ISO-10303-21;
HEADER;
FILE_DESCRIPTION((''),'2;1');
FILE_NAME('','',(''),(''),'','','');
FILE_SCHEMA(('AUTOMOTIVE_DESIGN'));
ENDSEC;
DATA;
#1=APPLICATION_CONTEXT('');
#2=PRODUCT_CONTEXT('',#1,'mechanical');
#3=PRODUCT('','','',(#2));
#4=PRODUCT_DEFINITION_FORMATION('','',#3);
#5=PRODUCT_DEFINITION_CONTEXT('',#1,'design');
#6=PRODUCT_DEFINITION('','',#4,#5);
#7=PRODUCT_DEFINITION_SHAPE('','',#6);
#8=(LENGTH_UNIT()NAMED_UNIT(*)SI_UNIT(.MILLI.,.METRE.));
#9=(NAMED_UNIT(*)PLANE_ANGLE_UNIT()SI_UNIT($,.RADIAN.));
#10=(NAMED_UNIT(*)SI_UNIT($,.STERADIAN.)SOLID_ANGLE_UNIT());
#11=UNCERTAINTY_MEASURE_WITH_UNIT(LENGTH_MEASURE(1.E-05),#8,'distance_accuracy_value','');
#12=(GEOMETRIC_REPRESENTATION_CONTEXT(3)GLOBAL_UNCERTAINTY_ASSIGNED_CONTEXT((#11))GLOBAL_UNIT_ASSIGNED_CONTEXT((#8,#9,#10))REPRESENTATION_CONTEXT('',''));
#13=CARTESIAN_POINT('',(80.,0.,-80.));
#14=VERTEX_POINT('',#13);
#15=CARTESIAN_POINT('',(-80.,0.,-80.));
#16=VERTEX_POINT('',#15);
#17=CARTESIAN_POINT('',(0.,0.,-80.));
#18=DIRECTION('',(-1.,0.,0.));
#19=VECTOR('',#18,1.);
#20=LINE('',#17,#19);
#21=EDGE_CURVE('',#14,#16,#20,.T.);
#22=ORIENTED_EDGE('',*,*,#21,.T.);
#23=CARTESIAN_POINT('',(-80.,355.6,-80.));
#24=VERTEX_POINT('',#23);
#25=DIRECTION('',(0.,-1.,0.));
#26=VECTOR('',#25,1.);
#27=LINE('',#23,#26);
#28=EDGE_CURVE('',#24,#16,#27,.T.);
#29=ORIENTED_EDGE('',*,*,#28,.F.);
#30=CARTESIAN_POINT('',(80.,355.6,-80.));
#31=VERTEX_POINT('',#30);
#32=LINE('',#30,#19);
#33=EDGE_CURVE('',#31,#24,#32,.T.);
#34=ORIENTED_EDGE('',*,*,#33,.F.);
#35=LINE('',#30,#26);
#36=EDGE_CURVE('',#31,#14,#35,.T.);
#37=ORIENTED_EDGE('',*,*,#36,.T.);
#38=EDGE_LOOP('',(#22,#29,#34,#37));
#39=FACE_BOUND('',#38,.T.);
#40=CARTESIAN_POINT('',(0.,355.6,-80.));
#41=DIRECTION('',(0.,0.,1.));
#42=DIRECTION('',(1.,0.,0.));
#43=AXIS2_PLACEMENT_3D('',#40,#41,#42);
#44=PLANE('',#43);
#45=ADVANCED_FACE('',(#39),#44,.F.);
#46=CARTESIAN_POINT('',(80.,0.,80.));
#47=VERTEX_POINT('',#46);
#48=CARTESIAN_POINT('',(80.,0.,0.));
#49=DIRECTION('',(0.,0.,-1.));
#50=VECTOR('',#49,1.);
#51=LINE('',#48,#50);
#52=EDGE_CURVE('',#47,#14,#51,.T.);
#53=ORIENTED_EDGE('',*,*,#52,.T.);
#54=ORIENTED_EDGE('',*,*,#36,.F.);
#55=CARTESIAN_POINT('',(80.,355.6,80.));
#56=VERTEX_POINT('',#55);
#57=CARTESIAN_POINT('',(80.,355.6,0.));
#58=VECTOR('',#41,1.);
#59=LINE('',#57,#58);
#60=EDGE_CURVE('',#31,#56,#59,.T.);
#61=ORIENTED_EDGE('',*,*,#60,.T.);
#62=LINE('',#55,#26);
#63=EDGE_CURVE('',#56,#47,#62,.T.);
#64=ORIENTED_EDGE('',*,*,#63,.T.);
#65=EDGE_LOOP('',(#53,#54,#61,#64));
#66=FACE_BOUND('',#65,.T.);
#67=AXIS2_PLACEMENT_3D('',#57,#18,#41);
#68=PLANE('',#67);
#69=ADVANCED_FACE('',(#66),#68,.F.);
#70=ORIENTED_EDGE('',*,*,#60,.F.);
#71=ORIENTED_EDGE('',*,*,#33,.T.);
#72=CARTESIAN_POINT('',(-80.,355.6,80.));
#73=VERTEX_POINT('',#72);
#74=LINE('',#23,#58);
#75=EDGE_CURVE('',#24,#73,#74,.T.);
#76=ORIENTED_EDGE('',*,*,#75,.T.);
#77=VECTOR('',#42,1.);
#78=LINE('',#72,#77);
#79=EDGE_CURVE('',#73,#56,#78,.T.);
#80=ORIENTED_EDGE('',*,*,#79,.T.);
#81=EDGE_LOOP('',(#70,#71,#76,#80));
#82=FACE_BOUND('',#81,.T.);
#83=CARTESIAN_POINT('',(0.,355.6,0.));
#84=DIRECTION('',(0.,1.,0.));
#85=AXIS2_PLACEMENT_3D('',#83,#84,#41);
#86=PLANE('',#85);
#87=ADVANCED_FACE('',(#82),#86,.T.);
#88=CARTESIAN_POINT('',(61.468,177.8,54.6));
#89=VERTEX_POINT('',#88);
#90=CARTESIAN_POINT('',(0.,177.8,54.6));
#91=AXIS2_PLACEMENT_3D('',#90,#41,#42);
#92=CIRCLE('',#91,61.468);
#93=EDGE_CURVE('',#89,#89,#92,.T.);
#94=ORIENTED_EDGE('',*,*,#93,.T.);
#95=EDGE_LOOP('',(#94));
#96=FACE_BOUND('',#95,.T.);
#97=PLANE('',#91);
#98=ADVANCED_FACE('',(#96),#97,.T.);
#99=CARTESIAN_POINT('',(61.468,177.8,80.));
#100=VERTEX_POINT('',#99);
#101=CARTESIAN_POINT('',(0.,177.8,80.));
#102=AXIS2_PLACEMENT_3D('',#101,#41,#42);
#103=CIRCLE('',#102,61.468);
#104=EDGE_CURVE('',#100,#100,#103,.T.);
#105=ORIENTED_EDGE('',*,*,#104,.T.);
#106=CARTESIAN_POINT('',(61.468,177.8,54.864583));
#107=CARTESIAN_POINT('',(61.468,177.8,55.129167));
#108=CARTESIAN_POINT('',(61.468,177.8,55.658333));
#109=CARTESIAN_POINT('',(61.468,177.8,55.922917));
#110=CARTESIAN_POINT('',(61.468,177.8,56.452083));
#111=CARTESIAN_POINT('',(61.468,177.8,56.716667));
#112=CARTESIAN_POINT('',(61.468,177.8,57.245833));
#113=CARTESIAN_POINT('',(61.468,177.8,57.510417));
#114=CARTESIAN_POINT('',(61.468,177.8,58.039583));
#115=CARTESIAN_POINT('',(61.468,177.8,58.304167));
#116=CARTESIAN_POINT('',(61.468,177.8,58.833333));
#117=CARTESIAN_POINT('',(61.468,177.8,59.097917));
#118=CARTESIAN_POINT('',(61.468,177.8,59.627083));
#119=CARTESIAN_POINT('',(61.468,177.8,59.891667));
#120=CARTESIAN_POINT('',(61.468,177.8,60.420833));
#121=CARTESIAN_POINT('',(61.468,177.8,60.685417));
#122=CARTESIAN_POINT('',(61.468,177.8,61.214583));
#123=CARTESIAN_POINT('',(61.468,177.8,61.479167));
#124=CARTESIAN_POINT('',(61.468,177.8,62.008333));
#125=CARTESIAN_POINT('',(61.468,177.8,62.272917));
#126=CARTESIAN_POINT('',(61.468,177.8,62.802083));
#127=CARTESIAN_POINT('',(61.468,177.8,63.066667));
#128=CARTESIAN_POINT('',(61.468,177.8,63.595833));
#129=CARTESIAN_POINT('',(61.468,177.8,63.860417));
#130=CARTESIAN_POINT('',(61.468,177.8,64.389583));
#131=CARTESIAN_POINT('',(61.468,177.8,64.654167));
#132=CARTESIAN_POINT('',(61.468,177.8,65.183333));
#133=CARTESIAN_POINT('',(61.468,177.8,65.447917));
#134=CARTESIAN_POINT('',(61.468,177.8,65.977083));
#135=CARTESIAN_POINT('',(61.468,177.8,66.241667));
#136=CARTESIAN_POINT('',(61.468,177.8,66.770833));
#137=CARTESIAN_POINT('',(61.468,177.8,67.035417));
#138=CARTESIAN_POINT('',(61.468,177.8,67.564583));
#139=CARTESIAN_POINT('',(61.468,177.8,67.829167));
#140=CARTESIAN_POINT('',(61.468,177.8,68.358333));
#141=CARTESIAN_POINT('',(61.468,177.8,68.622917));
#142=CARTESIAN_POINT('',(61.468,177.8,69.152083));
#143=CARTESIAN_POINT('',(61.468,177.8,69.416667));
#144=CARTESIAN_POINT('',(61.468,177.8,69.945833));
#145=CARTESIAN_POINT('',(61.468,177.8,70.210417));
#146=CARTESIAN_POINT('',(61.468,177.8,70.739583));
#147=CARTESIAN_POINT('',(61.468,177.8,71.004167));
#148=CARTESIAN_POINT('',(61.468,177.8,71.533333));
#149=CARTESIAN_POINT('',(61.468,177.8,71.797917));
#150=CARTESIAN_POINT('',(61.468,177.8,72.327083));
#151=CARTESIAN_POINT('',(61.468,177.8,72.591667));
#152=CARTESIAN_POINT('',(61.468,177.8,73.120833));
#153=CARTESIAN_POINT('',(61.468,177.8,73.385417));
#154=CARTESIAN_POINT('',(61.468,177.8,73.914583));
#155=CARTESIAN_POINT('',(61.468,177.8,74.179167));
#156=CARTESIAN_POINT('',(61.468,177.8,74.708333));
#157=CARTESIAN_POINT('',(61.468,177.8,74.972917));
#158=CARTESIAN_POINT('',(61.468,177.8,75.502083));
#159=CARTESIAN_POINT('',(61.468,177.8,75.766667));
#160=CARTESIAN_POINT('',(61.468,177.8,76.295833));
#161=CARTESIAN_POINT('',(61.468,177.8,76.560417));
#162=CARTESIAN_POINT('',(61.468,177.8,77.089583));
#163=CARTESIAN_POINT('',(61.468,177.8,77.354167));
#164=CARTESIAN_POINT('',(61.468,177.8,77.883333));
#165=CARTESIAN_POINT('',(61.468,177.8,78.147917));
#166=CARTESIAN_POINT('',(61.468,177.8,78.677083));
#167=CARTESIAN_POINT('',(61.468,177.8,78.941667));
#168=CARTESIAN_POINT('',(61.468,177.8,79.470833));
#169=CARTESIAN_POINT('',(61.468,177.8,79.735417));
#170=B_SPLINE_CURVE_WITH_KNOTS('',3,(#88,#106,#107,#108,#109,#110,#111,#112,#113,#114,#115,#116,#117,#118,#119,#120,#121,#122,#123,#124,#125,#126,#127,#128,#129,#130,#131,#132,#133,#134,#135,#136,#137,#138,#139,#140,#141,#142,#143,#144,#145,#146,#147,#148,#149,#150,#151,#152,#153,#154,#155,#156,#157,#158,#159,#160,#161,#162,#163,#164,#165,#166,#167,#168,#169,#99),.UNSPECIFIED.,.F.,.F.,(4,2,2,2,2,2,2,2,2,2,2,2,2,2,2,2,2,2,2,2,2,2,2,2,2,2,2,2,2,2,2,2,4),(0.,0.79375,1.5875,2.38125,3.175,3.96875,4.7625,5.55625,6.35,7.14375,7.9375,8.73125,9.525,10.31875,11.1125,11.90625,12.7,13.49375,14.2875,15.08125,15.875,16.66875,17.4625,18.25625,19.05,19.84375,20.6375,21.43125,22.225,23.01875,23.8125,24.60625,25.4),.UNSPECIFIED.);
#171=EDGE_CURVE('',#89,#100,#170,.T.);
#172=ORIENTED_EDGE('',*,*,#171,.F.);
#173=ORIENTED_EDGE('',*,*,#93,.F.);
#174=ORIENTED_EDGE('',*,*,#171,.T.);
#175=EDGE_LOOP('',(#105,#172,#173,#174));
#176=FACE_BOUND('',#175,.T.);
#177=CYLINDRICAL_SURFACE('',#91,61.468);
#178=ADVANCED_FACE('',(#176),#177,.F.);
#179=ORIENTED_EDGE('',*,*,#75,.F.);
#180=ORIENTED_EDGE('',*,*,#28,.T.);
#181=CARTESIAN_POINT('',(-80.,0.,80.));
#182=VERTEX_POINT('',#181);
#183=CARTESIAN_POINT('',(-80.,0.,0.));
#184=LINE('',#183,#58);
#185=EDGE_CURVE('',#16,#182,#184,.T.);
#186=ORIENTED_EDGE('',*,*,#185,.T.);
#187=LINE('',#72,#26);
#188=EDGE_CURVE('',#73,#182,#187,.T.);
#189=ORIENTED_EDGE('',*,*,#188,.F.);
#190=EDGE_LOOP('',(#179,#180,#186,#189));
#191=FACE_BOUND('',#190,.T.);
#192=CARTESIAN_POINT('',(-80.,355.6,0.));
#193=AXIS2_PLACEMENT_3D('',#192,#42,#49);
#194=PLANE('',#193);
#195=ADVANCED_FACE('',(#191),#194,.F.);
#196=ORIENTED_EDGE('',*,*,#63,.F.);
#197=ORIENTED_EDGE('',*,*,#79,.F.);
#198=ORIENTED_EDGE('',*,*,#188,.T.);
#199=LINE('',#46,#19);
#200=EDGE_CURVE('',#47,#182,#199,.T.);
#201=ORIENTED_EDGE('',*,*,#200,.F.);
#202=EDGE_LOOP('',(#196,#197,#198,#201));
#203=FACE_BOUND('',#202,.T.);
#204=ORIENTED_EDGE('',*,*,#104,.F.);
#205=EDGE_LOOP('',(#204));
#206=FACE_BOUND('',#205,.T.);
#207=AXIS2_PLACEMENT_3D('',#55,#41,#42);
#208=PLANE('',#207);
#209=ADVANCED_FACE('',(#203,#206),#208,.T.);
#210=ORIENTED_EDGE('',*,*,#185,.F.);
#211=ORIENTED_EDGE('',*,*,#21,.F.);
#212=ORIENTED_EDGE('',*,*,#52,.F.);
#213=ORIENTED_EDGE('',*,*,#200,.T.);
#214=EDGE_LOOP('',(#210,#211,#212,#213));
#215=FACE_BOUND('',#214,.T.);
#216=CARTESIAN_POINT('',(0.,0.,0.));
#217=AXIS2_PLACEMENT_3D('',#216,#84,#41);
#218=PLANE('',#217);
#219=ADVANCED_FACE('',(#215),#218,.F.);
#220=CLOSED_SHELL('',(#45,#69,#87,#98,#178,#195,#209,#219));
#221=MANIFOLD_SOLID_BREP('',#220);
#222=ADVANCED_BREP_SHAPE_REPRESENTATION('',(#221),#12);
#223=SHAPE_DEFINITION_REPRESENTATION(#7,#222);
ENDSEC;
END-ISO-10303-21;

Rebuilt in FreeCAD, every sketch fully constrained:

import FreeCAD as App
import Part
import Sketcher

V = App.Vector
Q = App.Units.Quantity

doc = App.newDocument("Part")
body = doc.addObject("PartDesign::Body", "Body")

# Sketch on XZ plane
sketch1 = body.newObject("Sketcher::SketchObject", "Sketch")
sketch1.AttachmentSupport = (doc.getObject("XZ_Plane"), [""])
sketch1.MapMode = "FlatFace"
sketch1.addGeometry(Part.LineSegment(V(-80, -80, 0), V(-80, 80, 0)), False)
sketch1.addGeometry(Part.LineSegment(V(-80, 80, 0), V(80, 80, 0)), False)
sketch1.addGeometry(Part.LineSegment(V(80, 80, 0), V(80, -80, 0)), False)
sketch1.addGeometry(Part.LineSegment(V(80, -80, 0), V(-80, -80, 0)), False)
sketch1.addConstraint(Sketcher.Constraint("Coincident", 0, 2, 1, 1))
sketch1.addConstraint(Sketcher.Constraint("Coincident", 1, 2, 2, 1))
sketch1.addConstraint(Sketcher.Constraint("Coincident", 2, 2, 3, 1))
sketch1.addConstraint(Sketcher.Constraint("Coincident", 3, 2, 0, 1))
sketch1.addConstraint(Sketcher.Constraint("Vertical", 0))
sketch1.addConstraint(Sketcher.Constraint("Horizontal", 1))
sketch1.addConstraint(Sketcher.Constraint("Vertical", 2))
sketch1.addConstraint(Sketcher.Constraint("Horizontal", 3))
sketch1.addConstraint(Sketcher.Constraint("Symmetric", 0, 2, 2, 2, -1, 1))
sketch1.addConstraint(Sketcher.Constraint("Equal", 3, 0))
sketch1.addConstraint(Sketcher.Constraint("DistanceX", 1, 1, 1, 2, 160.0))
pad1 = body.newObject("PartDesign::Pad", "Pad")
pad1.Profile = sketch1
pad1.Length = Q("14 in")
pad1.Reversed = True

# Sketch on XY plane
sketch2 = body.newObject("Sketcher::SketchObject", "Sketch001")
sketch2.AttachmentSupport = (doc.getObject("XY_Plane"), [""])
sketch2.MapMode = "FlatFace"
sketch2.AttachmentOffset = App.Placement(V(0, 0, 80), App.Rotation())
sketch2.addGeometry(Part.Circle(V(0, 178, 0), V(0, 0, 1), 61), False)
sketch2.addConstraint(Sketcher.Constraint("PointOnObject", 0, 3, -2))
sketch2.addConstraint(Sketcher.Constraint("Diameter", 0, Q("4.84 in")))
sketch2.addConstraint(Sketcher.Constraint("DistanceY", -1, 1, 0, 3, Q("7 in")))
pocket1 = body.newObject("PartDesign::Pocket", "Pocket")
pocket1.Profile = sketch2
pocket1.Length = Q("1 in")

doc.recompute()
